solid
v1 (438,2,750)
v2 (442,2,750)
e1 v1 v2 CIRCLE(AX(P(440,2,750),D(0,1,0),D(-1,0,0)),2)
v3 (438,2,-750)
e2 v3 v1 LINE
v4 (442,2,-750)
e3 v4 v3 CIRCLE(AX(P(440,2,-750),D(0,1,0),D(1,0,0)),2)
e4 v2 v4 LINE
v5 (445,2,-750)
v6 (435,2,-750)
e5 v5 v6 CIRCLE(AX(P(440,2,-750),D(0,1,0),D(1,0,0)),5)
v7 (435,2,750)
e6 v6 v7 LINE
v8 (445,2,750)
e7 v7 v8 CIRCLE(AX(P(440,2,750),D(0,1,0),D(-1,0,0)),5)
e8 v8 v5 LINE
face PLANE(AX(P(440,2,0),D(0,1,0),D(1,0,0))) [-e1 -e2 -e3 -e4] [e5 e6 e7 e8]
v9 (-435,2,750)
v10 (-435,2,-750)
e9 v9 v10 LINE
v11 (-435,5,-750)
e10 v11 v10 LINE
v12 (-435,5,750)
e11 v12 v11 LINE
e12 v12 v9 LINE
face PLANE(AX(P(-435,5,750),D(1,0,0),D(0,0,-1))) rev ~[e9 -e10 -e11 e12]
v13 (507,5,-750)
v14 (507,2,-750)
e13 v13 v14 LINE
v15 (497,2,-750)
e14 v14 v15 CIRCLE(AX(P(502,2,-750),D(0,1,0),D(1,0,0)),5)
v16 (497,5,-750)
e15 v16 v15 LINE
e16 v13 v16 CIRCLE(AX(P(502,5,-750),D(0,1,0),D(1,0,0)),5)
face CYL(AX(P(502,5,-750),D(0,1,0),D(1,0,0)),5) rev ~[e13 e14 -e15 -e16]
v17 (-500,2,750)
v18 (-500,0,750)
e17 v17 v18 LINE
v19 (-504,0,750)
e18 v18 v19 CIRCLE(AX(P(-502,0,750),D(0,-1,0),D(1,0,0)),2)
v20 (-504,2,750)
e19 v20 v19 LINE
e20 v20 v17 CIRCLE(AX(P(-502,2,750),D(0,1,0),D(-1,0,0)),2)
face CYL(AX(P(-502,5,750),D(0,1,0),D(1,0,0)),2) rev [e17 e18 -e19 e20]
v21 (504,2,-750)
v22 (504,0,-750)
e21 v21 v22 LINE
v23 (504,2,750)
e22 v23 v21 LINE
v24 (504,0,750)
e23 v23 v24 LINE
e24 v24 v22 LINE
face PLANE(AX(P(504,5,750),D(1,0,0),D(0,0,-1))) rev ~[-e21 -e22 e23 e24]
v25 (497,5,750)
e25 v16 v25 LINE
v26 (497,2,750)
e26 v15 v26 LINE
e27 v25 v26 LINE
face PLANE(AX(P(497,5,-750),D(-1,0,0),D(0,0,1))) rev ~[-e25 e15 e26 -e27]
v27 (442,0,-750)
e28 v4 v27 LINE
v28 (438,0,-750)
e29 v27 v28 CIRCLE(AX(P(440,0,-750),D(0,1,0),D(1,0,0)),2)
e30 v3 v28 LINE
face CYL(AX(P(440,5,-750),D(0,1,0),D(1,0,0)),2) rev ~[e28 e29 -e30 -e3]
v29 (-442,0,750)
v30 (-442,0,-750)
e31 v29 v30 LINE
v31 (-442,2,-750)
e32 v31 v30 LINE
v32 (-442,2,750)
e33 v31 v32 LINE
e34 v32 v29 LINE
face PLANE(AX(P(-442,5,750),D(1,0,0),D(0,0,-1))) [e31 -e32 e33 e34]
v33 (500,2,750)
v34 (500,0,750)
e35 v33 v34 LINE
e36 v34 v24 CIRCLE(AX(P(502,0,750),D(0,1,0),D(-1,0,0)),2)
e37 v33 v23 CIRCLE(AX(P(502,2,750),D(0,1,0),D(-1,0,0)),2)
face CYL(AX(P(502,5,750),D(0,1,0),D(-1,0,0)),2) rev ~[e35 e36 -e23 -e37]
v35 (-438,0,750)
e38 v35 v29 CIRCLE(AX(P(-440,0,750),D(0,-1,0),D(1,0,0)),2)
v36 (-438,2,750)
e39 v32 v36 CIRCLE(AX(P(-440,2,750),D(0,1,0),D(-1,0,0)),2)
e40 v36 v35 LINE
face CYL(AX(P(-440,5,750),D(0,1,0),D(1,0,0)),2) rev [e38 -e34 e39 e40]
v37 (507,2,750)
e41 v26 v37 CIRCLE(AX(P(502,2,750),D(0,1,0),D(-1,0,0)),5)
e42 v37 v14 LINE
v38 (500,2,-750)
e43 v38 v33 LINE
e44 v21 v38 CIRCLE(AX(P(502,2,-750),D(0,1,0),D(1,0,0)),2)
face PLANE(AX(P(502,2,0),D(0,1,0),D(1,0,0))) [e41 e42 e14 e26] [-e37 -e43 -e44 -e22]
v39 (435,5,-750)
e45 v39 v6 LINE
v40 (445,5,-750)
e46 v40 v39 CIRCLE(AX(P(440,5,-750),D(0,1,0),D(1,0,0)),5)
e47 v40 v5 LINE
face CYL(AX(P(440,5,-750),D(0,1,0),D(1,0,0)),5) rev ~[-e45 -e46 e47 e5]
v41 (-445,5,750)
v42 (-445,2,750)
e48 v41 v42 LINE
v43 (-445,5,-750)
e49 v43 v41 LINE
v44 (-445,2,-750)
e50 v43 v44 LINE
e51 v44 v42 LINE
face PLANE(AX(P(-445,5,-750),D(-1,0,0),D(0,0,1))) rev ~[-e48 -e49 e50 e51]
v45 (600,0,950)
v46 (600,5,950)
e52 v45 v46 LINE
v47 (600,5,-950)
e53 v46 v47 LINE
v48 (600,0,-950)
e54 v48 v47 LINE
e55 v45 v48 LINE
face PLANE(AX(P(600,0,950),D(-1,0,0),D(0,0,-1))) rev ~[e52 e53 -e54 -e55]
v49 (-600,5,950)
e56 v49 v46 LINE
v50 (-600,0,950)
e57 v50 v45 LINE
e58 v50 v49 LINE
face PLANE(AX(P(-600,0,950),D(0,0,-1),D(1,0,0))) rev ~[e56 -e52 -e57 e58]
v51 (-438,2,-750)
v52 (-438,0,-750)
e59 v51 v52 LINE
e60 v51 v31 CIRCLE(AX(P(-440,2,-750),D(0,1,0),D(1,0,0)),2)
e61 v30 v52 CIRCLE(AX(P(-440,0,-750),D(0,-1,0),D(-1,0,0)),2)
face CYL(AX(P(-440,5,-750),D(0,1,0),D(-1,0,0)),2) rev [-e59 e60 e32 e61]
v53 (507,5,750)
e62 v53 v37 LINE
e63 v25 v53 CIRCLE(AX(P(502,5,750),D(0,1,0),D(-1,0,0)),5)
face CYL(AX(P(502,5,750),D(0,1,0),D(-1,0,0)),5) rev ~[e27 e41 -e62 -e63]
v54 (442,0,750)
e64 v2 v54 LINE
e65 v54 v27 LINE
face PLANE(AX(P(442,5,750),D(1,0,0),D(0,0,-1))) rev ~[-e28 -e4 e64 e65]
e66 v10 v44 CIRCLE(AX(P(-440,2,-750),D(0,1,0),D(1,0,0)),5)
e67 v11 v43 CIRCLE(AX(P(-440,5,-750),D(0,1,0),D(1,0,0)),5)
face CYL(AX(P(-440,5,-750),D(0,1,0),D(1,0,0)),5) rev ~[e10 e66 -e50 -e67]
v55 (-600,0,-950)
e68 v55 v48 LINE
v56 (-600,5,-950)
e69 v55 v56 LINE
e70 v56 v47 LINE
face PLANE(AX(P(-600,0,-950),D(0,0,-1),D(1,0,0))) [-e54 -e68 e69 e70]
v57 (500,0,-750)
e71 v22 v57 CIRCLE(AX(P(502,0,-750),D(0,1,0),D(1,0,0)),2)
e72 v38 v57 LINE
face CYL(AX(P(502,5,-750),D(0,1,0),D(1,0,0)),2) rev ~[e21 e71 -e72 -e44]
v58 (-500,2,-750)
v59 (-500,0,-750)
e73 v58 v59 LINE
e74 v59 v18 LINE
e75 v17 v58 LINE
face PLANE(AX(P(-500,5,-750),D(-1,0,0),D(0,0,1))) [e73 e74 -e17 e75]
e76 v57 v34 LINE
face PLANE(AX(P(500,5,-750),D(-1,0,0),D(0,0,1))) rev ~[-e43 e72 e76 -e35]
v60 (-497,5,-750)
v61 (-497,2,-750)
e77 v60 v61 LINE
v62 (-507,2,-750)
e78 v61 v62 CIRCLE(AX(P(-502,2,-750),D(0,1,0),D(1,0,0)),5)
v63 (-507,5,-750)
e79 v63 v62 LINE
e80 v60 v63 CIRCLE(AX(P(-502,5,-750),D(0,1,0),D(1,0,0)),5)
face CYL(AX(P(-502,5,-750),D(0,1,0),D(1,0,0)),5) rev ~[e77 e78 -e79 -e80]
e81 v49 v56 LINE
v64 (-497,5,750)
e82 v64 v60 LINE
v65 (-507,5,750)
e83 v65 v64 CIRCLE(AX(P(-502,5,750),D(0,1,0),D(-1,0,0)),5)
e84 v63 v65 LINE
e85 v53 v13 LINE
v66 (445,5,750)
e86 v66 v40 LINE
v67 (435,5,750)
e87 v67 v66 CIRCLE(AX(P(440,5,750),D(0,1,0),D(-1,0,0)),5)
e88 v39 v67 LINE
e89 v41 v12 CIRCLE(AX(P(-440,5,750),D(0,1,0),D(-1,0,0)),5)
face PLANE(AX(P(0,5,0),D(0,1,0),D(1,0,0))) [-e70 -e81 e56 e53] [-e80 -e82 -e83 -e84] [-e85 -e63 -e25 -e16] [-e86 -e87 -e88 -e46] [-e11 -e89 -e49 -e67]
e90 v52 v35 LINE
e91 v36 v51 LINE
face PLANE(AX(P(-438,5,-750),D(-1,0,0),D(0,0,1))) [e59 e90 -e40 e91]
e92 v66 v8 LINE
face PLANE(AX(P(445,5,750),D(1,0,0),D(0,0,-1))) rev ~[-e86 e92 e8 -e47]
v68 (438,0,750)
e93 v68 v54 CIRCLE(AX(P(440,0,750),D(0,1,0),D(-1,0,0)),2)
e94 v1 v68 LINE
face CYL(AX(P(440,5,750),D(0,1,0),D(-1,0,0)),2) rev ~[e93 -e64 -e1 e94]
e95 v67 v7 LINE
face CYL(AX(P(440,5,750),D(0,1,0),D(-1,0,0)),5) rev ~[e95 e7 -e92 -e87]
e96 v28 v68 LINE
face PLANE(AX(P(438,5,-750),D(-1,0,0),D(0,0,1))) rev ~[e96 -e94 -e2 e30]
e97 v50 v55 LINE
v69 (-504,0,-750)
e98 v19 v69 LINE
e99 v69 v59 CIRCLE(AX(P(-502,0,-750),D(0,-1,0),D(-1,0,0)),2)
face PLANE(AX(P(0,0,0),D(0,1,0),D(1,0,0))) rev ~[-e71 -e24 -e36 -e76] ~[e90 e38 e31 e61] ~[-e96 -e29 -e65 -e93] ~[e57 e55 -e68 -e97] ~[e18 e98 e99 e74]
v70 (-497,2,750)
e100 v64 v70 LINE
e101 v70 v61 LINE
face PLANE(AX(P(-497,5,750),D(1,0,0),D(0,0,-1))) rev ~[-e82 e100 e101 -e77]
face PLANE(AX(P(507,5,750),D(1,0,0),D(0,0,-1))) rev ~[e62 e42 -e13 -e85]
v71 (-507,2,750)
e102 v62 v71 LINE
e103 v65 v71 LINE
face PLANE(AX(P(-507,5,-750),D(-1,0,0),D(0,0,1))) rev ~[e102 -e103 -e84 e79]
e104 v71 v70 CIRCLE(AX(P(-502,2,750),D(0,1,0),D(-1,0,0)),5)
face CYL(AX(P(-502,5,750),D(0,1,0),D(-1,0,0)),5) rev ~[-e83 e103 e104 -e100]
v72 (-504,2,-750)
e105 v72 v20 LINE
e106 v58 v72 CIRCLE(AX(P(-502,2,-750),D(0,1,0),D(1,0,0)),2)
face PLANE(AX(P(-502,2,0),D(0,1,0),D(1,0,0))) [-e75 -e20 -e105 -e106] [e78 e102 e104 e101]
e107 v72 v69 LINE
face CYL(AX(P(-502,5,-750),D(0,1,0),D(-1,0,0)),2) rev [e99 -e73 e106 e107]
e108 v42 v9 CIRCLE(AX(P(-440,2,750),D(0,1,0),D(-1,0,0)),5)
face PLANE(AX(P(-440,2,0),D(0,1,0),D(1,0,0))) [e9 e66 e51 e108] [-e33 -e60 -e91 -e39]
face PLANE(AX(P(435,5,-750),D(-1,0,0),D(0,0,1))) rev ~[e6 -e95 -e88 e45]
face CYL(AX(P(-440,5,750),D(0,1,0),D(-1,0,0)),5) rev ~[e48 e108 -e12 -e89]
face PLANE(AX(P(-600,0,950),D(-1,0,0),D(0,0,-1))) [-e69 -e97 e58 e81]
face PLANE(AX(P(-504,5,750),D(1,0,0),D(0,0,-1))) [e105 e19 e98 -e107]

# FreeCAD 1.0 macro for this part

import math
import FreeCAD as App
import Part
import Sketcher
Q = App.Units.Quantity


def add_polygon(sketch, points):
    """Adds a closed chain of lines whose ends are joined by coincident constraints."""
    first, n = sketch.GeometryCount, len(points)
    for a, b in zip(points, points[1:] + points[:1]):
        sketch.addGeometry(Part.LineSegment(App.Vector(*a, 0), App.Vector(*b, 0)), False)
    for i in range(n):
        sketch.addConstraint(Sketcher.Constraint("Coincident", first + i, 2, first + (i + 1) % n, 1))

doc = App.newDocument("Part")
body = doc.addObject("PartDesign::Body", "Body")

# Sketch on XZ plane
sketch1 = body.newObject("Sketcher::SketchObject", "Sketch")
sketch1.AttachmentSupport = (doc.getObject("XZ_Plane"), [""])
sketch1.MapMode = "FlatFace"
add_polygon(sketch1, [(-600, -950), (-600, 950), (600, 950), (600, -950)])  # lines 0-3
sketch1.addConstraint(Sketcher.Constraint("Vertical", 0))
sketch1.addConstraint(Sketcher.Constraint("Horizontal", 1))
sketch1.addConstraint(Sketcher.Constraint("Vertical", 2))
sketch1.addConstraint(Sketcher.Constraint("Horizontal", 3))
sketch1.addConstraint(Sketcher.Constraint("Symmetric", 0, 2, 2, 2, -1, 1))
sketch1.addConstraint(Sketcher.Constraint("DistanceX", 1, 1, 1, 2, Q("1200 mm")))
sketch1.addConstraint(Sketcher.Constraint("DistanceY", 0, 1, 0, 2, Q("1900 mm")))
pad1 = body.newObject("PartDesign::Pad", "Pad")
pad1.Profile = sketch1
pad1.Length = 5
pad1.Reversed = True

# Sketch on XZ plane
sketch2 = body.newObject("Sketcher::SketchObject", "Sketch001")
sketch2.AttachmentSupport = (doc.getObject("XZ_Plane"), [""])
sketch2.MapMode = "FlatFace"
sketch2.AttachmentOffset = App.Placement(App.Vector(0, 0, -5), App.Rotation())
sketch2.addGeometry(Part.LineSegment(App.Vector(-500, 750, 0), App.Vector(-500, -750, 0)), False)
sketch2.addGeometry(Part.ArcOfCircle(Part.Circle(App.Vector(-502, -750, 0), App.Vector(0, 0, 1), 2), math.radians(180), math.radians(360)), False)
sketch2.addGeometry(Part.LineSegment(App.Vector(-504, -750, 0), App.Vector(-504, 750, 0)), False)
sketch2.addGeometry(Part.ArcOfCircle(Part.Circle(App.Vector(-502, 750, 0), App.Vector(0, 0, 1), 2), math.radians(0), math.radians(180)), False)
sketch2.addGeometry(Part.LineSegment(App.Vector(-438, 750, 0), App.Vector(-438, -750, 0)), False)
sketch2.addGeometry(Part.ArcOfCircle(Part.Circle(App.Vector(-440, -750, 0), App.Vector(0, 0, 1), 2), math.radians(180), math.radians(360)), False)
sketch2.addGeometry(Part.LineSegment(App.Vector(-442, -750, 0), App.Vector(-442, 750, 0)), False)
sketch2.addGeometry(Part.ArcOfCircle(Part.Circle(App.Vector(-440, 750, 0), App.Vector(0, 0, 1), 2), math.radians(0), math.radians(180)), False)
sketch2.addGeometry(Part.LineSegment(App.Vector(438, -750, 0), App.Vector(438, 750, 0)), False)
sketch2.addGeometry(Part.ArcOfCircle(Part.Circle(App.Vector(440, 750, 0), App.Vector(0, 0, 1), 2), math.radians(0), math.radians(180)), False)
sketch2.addGeometry(Part.LineSegment(App.Vector(442, 750, 0), App.Vector(442, -750, 0)), False)
sketch2.addGeometry(Part.ArcOfCircle(Part.Circle(App.Vector(440, -750, 0), App.Vector(0, 0, 1), 2), math.radians(180), math.radians(360)), False)
sketch2.addGeometry(Part.LineSegment(App.Vector(500, -750, 0), App.Vector(500, 750, 0)), False)
sketch2.addGeometry(Part.ArcOfCircle(Part.Circle(App.Vector(502, 750, 0), App.Vector(0, 0, 1), 2), math.radians(0), math.radians(180)), False)
sketch2.addGeometry(Part.LineSegment(App.Vector(504, 750, 0), App.Vector(504, -750, 0)), False)
sketch2.addGeometry(Part.ArcOfCircle(Part.Circle(App.Vector(502, -750, 0), App.Vector(0, 0, 1), 2), math.radians(180), math.radians(360)), False)
sketch2.addConstraint(Sketcher.Constraint("Tangent", 0, 2, 1, 2))
sketch2.addConstraint(Sketcher.Constraint("Tangent", 1, 1, 2, 1))
sketch2.addConstraint(Sketcher.Constraint("Tangent", 2, 2, 3, 2))
sketch2.addConstraint(Sketcher.Constraint("Tangent", 3, 1, 0, 1))
sketch2.addConstraint(Sketcher.Constraint("Tangent", 4, 2, 5, 2))
sketch2.addConstraint(Sketcher.Constraint("Tangent", 5, 1, 6, 1))
sketch2.addConstraint(Sketcher.Constraint("Tangent", 6, 2, 7, 2))
sketch2.addConstraint(Sketcher.Constraint("Tangent", 7, 1, 4, 1))
sketch2.addConstraint(Sketcher.Constraint("Tangent", 8, 2, 9, 2))
sketch2.addConstraint(Sketcher.Constraint("Tangent", 9, 1, 10, 1))
sketch2.addConstraint(Sketcher.Constraint("Tangent", 10, 2, 11, 2))
sketch2.addConstraint(Sketcher.Constraint("Tangent", 11, 1, 8, 1))
sketch2.addConstraint(Sketcher.Constraint("Tangent", 12, 2, 13, 2))
sketch2.addConstraint(Sketcher.Constraint("Tangent", 13, 1, 14, 1))
sketch2.addConstraint(Sketcher.Constraint("Tangent", 14, 2, 15, 2))
sketch2.addConstraint(Sketcher.Constraint("Tangent", 15, 1, 12, 1))
sketch2.addConstraint(Sketcher.Constraint("Vertical", 0))
sketch2.addConstraint(Sketcher.Constraint("Vertical", 2))
sketch2.addConstraint(Sketcher.Constraint("Vertical", 4))
sketch2.addConstraint(Sketcher.Constraint("Vertical", 6))
sketch2.addConstraint(Sketcher.Constraint("Vertical", 8))
sketch2.addConstraint(Sketcher.Constraint("Vertical", 10))
sketch2.addConstraint(Sketcher.Constraint("Vertical", 12))
sketch2.addConstraint(Sketcher.Constraint("Vertical", 14))
sketch2.addConstraint(Sketcher.Constraint("Equal", 3, 5))
sketch2.addConstraint(Sketcher.Constraint("Equal", 7, 9))
sketch2.addConstraint(Sketcher.Constraint("Equal", 11, 13))
sketch2.addConstraint(Sketcher.Constraint("Symmetric", 5, 3, 9, 3, -1, 1))
sketch2.addConstraint(Sketcher.Constraint("Symmetric", 1, 3, 13, 3, -1, 1))
sketch2.addConstraint(Sketcher.Constraint("Horizontal", 1, 3, 5, 3))
sketch2.addConstraint(Sketcher.Constraint("Horizontal", 3, 3, 7, 3))
sketch2.addConstraint(Sketcher.Constraint("Horizontal", 7, 3, 9, 3))
sketch2.addConstraint(Sketcher.Constraint("Horizontal", 5, 3, 11, 3))
sketch2.addConstraint(Sketcher.Constraint("Horizontal", 11, 3, 15, 3))
sketch2.addConstraint(Sketcher.Constraint("Radius", 1, Q("2 mm")))
sketch2.addConstraint(Sketcher.Constraint("DistanceY", 0, 2, 0, 1, Q("1500 mm")))
sketch2.addConstraint(Sketcher.Constraint("DistanceX", 1, 3, -1, 1, Q("502 mm")))
sketch2.addConstraint(Sketcher.Constraint("DistanceX", 5, 3, -1, 1, Q("440 mm")))
pocket1 = body.newObject("PartDesign::Pocket", "Pocket")
pocket1.Profile = sketch2
pocket1.Length = 5
pocket1.Reversed = True

# Sketch on XZ plane
sketch3 = body.newObject("Sketcher::SketchObject", "Sketch002")
sketch3.AttachmentSupport = (doc.getObject("XZ_Plane"), [""])
sketch3.MapMode = "FlatFace"
sketch3.AttachmentOffset = App.Placement(App.Vector(0, 0, -5), App.Rotation())
sketch3.addGeometry(Part.LineSegment(App.Vector(-435, 750, 0), App.Vector(-435, -750, 0)), False)
sketch3.addGeometry(Part.ArcOfCircle(Part.Circle(App.Vector(-440, -750, 0), App.Vector(0, 0, 1), 5), math.radians(180), math.radians(360)), False)
sketch3.addGeometry(Part.LineSegment(App.Vector(-445, -750, 0), App.Vector(-445, 750, 0)), False)
sketch3.addGeometry(Part.ArcOfCircle(Part.Circle(App.Vector(-440, 750, 0), App.Vector(0, 0, 1), 5), math.radians(0), math.radians(180)), False)
sketch3.addGeometry(Part.LineSegment(App.Vector(-438, -750, 0), App.Vector(-438, 750, 0)), False)
sketch3.addGeometry(Part.ArcOfCircle(Part.Circle(App.Vector(-440, 750, 0), App.Vector(0, 0, 1), 2), math.radians(0), math.radians(180)), False)
sketch3.addGeometry(Part.LineSegment(App.Vector(-442, 750, 0), App.Vector(-442, -750, 0)), False)
sketch3.addGeometry(Part.ArcOfCircle(Part.Circle(App.Vector(-440, -750, 0), App.Vector(0, 0, 1), 2), math.radians(180), math.radians(360)), False)
sketch3.addGeometry(Part.LineSegment(App.Vector(-497, 750, 0), App.Vector(-497, -750, 0)), False)
sketch3.addGeometry(Part.ArcOfCircle(Part.Circle(App.Vector(-502, -750, 0), App.Vector(0, 0, 1), 5), math.radians(180), math.radians(360)), False)
sketch3.addGeometry(Part.LineSegment(App.Vector(-507, -750, 0), App.Vector(-507, 750, 0)), False)
sketch3.addGeometry(Part.ArcOfCircle(Part.Circle(App.Vector(-502, 750, 0), App.Vector(0, 0, 1), 5), math.radians(0), math.radians(180)), False)
sketch3.addGeometry(Part.LineSegment(App.Vector(-500, -750, 0), App.Vector(-500, 750, 0)), False)
sketch3.addGeometry(Part.ArcOfCircle(Part.Circle(App.Vector(-502, 750, 0), App.Vector(0, 0, 1), 2), math.radians(0), math.radians(180)), False)
sketch3.addGeometry(Part.LineSegment(App.Vector(-504, 750, 0), App.Vector(-504, -750, 0)), False)
sketch3.addGeometry(Part.ArcOfCircle(Part.Circle(App.Vector(-502, -750, 0), App.Vector(0, 0, 1), 2), math.radians(180), math.radians(360)), False)
sketch3.addGeometry(Part.LineSegment(App.Vector(497, -750, 0), App.Vector(497, 750, 0)), False)
sketch3.addGeometry(Part.ArcOfCircle(Part.Circle(App.Vector(502, 750, 0), App.Vector(0, 0, 1), 5), math.radians(0), math.radians(180)), False)
sketch3.addGeometry(Part.LineSegment(App.Vector(507, 750, 0), App.Vector(507, -750, 0)), False)
sketch3.addGeometry(Part.ArcOfCircle(Part.Circle(App.Vector(502, -750, 0), App.Vector(0, 0, 1), 5), math.radians(180), math.radians(360)), False)
sketch3.addGeometry(Part.LineSegment(App.Vector(500, 750, 0), App.Vector(500, -750, 0)), False)
sketch3.addGeometry(Part.ArcOfCircle(Part.Circle(App.Vector(502, -750, 0), App.Vector(0, 0, 1), 2), math.radians(180), math.radians(360)), False)
sketch3.addGeometry(Part.LineSegment(App.Vector(504, -750, 0), App.Vector(504, 750, 0)), False)
sketch3.addGeometry(Part.ArcOfCircle(Part.Circle(App.Vector(502, 750, 0), App.Vector(0, 0, 1), 2), math.radians(0), math.radians(180)), False)
sketch3.addGeometry(Part.LineSegment(App.Vector(435, -750, 0), App.Vector(435, 750, 0)), False)
sketch3.addGeometry(Part.ArcOfCircle(Part.Circle(App.Vector(440, 750, 0), App.Vector(0, 0, 1), 5), math.radians(0), math.radians(180)), False)
sketch3.addGeometry(Part.LineSegment(App.Vector(445, 750, 0), App.Vector(445, -750, 0)), False)
sketch3.addGeometry(Part.ArcOfCircle(Part.Circle(App.Vector(440, -750, 0), App.Vector(0, 0, 1), 5), math.radians(180), math.radians(360)), False)
sketch3.addGeometry(Part.LineSegment(App.Vector(438, 750, 0), App.Vector(438, -750, 0)), False)
sketch3.addGeometry(Part.ArcOfCircle(Part.Circle(App.Vector(440, -750, 0), App.Vector(0, 0, 1), 2), math.radians(180), math.radians(360)), False)
sketch3.addGeometry(Part.LineSegment(App.Vector(442, -750, 0), App.Vector(442, 750, 0)), False)
sketch3.addGeometry(Part.ArcOfCircle(Part.Circle(App.Vector(440, 750, 0), App.Vector(0, 0, 1), 2), math.radians(0), math.radians(180)), False)
sketch3.addConstraint(Sketcher.Constraint("Tangent", 0, 2, 1, 2))
sketch3.addConstraint(Sketcher.Constraint("Tangent", 1, 1, 2, 1))
sketch3.addConstraint(Sketcher.Constraint("Tangent", 2, 2, 3, 2))
sketch3.addConstraint(Sketcher.Constraint("Tangent", 3, 1, 0, 1))
sketch3.addConstraint(Sketcher.Constraint("Tangent", 4, 2, 5, 1))
sketch3.addConstraint(Sketcher.Constraint("Tangent", 5, 2, 6, 1))
sketch3.addConstraint(Sketcher.Constraint("Tangent", 6, 2, 7, 1))
sketch3.addConstraint(Sketcher.Constraint("Tangent", 7, 2, 4, 1))
sketch3.addConstraint(Sketcher.Constraint("Tangent", 8, 2, 9, 2))
sketch3.addConstraint(Sketcher.Constraint("Tangent", 9, 1, 10, 1))
sketch3.addConstraint(Sketcher.Constraint("Tangent", 10, 2, 11, 2))
sketch3.addConstraint(Sketcher.Constraint("Tangent", 11, 1, 8, 1))
sketch3.addConstraint(Sketcher.Constraint("Tangent", 12, 2, 13, 1))
sketch3.addConstraint(Sketcher.Constraint("Tangent", 13, 2, 14, 1))
sketch3.addConstraint(Sketcher.Constraint("Tangent", 14, 2, 15, 1))
sketch3.addConstraint(Sketcher.Constraint("Tangent", 15, 2, 12, 1))
sketch3.addConstraint(Sketcher.Constraint("Tangent", 16, 2, 17, 2))
sketch3.addConstraint(Sketcher.Constraint("Tangent", 17, 1, 18, 1))
sketch3.addConstraint(Sketcher.Constraint("Tangent", 18, 2, 19, 2))
sketch3.addConstraint(Sketcher.Constraint("Tangent", 19, 1, 16, 1))
sketch3.addConstraint(Sketcher.Constraint("Tangent", 20, 2, 21, 1))
sketch3.addConstraint(Sketcher.Constraint("Tangent", 21, 2, 22, 1))
sketch3.addConstraint(Sketcher.Constraint("Tangent", 22, 2, 23, 1))
sketch3.addConstraint(Sketcher.Constraint("Tangent", 23, 2, 20, 1))
sketch3.addConstraint(Sketcher.Constraint("Tangent", 24, 2, 25, 2))
sketch3.addConstraint(Sketcher.Constraint("Tangent", 25, 1, 26, 1))
sketch3.addConstraint(Sketcher.Constraint("Tangent", 26, 2, 27, 2))
sketch3.addConstraint(Sketcher.Constraint("Tangent", 27, 1, 24, 1))
sketch3.addConstraint(Sketcher.Constraint("Tangent", 28, 2, 29, 1))
sketch3.addConstraint(Sketcher.Constraint("Tangent", 29, 2, 30, 1))
sketch3.addConstraint(Sketcher.Constraint("Tangent", 30, 2, 31, 1))
sketch3.addConstraint(Sketcher.Constraint("Tangent", 31, 2, 28, 1))
sketch3.addConstraint(Sketcher.Constraint("Vertical", 0))
sketch3.addConstraint(Sketcher.Constraint("Vertical", 2))
sketch3.addConstraint(Sketcher.Constraint("Vertical", 4))
sketch3.addConstraint(Sketcher.Constraint("Vertical", 6))
sketch3.addConstraint(Sketcher.Constraint("Vertical", 8))
sketch3.addConstraint(Sketcher.Constraint("Vertical", 10))
sketch3.addConstraint(Sketcher.Constraint("Vertical", 12))
sketch3.addConstraint(Sketcher.Constraint("Vertical", 14))
sketch3.addConstraint(Sketcher.Constraint("Vertical", 16))
sketch3.addConstraint(Sketcher.Constraint("Vertical", 18))
sketch3.addConstraint(Sketcher.Constraint("Vertical", 20))
sketch3.addConstraint(Sketcher.Constraint("Vertical", 22))
sketch3.addConstraint(Sketcher.Constraint("Vertical", 24))
sketch3.addConstraint(Sketcher.Constraint("Vertical", 26))
sketch3.addConstraint(Sketcher.Constraint("Vertical", 28))
sketch3.addConstraint(Sketcher.Constraint("Vertical", 30))
sketch3.addConstraint(Sketcher.Constraint("Coincident", 5, 3, 3, 3))
sketch3.addConstraint(Sketcher.Constraint("Coincident", 13, 3, 11, 3))
sketch3.addConstraint(Sketcher.Constraint("Coincident", 21, 3, 19, 3))
sketch3.addConstraint(Sketcher.Constraint("Coincident", 29, 3, 27, 3))
sketch3.addConstraint(Sketcher.Constraint("Equal", 3, 9))
sketch3.addConstraint(Sketcher.Constraint("Equal", 7, 13))
sketch3.addConstraint(Sketcher.Constraint("Equal", 11, 17))
sketch3.addConstraint(Sketcher.Constraint("Equal", 15, 21))
sketch3.addConstraint(Sketcher.Constraint("Equal", 19, 25))
sketch3.addConstraint(Sketcher.Constraint("Equal", 23, 29))
sketch3.addConstraint(Sketcher.Constraint("Symmetric", 9, 3, 17, 3, -1, 1))
sketch3.addConstraint(Sketcher.Constraint("Symmetric", 1, 3, 25, 3, -1, 1))
sketch3.addConstraint(Sketcher.Constraint("Horizontal", 7, 3, 9, 3))
sketch3.addConstraint(Sketcher.Constraint("Horizontal", 5, 3, 11, 3))
sketch3.addConstraint(Sketcher.Constraint("Horizontal", 7, 3, 15, 3))
sketch3.addConstraint(Sketcher.Constraint("Horizontal", 13, 3, 17, 3))
sketch3.addConstraint(Sketcher.Constraint("Horizontal", 15, 3, 19, 3))
sketch3.addConstraint(Sketcher.Constraint("Horizontal", 13, 3, 23, 3))
sketch3.addConstraint(Sketcher.Constraint("Horizontal", 23, 3, 25, 3))
sketch3.addConstraint(Sketcher.Constraint("Horizontal", 21, 3, 27, 3))
sketch3.addConstraint(Sketcher.Constraint("Horizontal", 23, 3, 31, 3))
sketch3.addConstraint(Sketcher.Constraint("Radius", 1, Q("5 mm")))
sketch3.addConstraint(Sketcher.Constraint("Radius", 5, Q("2 mm")))
sketch3.addConstraint(Sketcher.Constraint("DistanceY", 0, 2, 0, 1, Q("1500 mm")))
sketch3.addConstraint(Sketcher.Constraint("DistanceX", 1, 3, -1, 1, Q("440 mm")))
sketch3.addConstraint(Sketcher.Constraint("DistanceX", 9, 3, -1, 1, Q("502 mm")))
pocket2 = body.newObject("PartDesign::Pocket", "Pocket001")
pocket2.Profile = sketch3
pocket2.Length = 3
pocket2.Reversed = True

doc.recompute()
